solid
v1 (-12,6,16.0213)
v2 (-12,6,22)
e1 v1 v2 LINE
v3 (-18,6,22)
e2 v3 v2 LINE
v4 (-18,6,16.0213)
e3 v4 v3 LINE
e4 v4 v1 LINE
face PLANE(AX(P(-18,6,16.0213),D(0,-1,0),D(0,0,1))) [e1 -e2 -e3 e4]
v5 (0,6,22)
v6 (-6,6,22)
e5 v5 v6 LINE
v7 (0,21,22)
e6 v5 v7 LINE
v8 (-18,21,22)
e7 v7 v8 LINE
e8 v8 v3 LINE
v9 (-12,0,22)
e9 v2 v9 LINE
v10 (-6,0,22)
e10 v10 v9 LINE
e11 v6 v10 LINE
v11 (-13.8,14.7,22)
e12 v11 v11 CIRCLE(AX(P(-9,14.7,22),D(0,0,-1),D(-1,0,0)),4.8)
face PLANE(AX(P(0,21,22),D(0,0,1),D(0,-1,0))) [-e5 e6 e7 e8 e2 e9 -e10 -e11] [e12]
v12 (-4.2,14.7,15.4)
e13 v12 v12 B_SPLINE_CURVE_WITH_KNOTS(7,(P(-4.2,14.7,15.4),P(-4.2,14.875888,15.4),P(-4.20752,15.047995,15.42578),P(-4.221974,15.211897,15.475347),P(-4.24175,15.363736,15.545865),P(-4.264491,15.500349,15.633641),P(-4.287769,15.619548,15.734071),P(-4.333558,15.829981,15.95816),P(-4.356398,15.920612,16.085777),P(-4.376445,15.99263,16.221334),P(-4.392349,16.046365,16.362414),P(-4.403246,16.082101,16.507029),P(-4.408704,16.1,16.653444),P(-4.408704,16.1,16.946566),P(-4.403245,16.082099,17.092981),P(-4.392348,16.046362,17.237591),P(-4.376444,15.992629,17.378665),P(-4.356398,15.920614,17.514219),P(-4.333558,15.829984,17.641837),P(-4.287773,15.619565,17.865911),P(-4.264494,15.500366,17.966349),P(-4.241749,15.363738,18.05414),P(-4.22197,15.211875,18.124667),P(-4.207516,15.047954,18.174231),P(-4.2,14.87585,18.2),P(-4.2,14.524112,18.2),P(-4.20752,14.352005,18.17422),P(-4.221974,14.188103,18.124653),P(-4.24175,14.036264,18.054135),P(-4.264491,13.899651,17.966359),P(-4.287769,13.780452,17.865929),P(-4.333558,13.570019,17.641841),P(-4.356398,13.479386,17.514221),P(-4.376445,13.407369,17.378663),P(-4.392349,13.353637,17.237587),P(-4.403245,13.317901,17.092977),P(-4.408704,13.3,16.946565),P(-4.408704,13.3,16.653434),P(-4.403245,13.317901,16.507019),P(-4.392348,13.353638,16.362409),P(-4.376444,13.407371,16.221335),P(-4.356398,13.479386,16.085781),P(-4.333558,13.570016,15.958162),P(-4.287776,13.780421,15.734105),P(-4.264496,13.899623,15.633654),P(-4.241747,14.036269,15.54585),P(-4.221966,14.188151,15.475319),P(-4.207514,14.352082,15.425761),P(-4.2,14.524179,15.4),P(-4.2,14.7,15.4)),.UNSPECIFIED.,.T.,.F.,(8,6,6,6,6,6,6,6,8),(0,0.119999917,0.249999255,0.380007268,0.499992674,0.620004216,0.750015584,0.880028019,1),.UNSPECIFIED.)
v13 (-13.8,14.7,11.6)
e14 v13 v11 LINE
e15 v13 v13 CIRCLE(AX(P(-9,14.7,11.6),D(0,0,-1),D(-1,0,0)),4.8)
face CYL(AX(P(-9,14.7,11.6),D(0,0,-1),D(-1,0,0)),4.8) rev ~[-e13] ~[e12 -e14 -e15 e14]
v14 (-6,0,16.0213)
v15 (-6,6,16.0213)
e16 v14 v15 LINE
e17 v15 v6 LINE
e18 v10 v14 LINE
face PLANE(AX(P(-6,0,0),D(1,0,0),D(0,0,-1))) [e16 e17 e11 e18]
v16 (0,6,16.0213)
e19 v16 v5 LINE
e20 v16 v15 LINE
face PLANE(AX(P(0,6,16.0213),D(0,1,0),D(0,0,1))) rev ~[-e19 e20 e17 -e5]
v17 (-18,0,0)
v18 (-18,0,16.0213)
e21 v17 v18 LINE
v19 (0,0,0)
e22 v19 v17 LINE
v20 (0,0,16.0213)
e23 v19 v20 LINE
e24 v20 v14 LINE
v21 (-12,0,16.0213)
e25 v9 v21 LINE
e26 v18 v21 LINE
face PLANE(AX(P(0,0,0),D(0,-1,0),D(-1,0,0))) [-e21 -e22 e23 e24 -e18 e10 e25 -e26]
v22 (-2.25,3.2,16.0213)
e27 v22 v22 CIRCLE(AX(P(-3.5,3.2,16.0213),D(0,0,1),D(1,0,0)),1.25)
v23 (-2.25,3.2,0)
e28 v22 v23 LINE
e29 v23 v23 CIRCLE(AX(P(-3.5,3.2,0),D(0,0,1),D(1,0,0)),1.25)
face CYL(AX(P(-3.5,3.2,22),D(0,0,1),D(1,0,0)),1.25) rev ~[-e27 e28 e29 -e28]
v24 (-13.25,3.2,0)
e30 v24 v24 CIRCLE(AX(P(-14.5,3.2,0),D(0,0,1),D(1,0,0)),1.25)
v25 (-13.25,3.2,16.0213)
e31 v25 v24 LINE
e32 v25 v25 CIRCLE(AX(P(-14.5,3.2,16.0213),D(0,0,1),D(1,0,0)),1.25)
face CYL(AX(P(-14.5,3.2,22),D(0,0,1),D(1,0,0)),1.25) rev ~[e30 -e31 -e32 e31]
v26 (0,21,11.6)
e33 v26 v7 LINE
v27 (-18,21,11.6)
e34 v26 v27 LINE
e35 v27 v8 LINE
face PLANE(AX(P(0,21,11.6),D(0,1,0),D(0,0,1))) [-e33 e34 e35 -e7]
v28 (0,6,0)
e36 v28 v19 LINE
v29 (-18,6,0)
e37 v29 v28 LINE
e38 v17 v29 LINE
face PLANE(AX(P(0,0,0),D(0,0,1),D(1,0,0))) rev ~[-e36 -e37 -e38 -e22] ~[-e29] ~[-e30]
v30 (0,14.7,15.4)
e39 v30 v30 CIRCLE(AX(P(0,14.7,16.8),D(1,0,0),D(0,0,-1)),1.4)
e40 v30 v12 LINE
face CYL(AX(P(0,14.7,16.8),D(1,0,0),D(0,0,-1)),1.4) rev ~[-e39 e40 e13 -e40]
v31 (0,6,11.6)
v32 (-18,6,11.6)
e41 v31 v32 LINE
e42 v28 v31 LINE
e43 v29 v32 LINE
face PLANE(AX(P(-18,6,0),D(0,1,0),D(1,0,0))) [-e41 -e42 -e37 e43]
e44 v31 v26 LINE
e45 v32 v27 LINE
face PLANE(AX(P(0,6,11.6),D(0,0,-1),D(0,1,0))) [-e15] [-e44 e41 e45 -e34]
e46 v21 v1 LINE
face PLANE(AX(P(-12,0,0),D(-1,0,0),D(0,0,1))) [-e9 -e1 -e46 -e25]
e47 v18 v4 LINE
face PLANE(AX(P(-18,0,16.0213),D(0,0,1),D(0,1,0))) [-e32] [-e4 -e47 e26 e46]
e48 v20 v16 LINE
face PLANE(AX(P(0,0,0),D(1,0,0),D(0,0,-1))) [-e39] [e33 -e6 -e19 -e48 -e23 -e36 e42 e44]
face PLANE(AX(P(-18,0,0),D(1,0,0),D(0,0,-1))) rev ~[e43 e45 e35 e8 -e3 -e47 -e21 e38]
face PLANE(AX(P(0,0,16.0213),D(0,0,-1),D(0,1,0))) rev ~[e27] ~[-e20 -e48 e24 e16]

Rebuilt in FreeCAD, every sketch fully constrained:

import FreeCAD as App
import Part
import Sketcher

V = App.Vector
Q = App.Units.Quantity


def add_polygon(sketch, points):
    """Adds a closed chain of lines whose ends are joined by coincident constraints."""
    first, n = sketch.GeometryCount, len(points)
    for a, b in zip(points, points[1:] + points[:1]):
        sketch.addGeometry(Part.LineSegment(App.Vector(*a, 0), App.Vector(*b, 0)), False)
    for i in range(n):
        sketch.addConstraint(Sketcher.Constraint("Coincident", first + i, 2, first + (i + 1) % n, 1))

doc = App.newDocument("Part")
body = doc.addObject("PartDesign::Body", "Body")

# Sketch on XY plane
sketch1 = body.newObject("Sketcher::SketchObject", "Sketch")
sketch1.AttachmentSupport = (doc.getObject("XY_Plane"), [""])
sketch1.MapMode = "FlatFace"
add_polygon(sketch1, [(-18, 0), (0, 0), (0, 6), (-18, 6)])  # lines 0-3
sketch1.addConstraint([
    Sketcher.Constraint("Horizontal", 0),
    Sketcher.Constraint("Vertical", 1),
    Sketcher.Constraint("Horizontal", 2),
    Sketcher.Constraint("Vertical", 3),
    Sketcher.Constraint("Coincident", 0, 2, -1, 1),
    Sketcher.Constraint("DistanceX", 0, 1, 0, 2, Q("18 mm")),
    Sketcher.Constraint("DistanceY", 1, 1, 1, 2, Q("6 mm")),
])
pad1 = body.newObject("PartDesign::Pad", "Pad")
pad1.Profile = sketch1
pad1.Length = 22

# Sketch on XY plane
sketch2 = body.newObject("Sketcher::SketchObject", "Sketch001")
sketch2.AttachmentSupport = (doc.getObject("XY_Plane"), [""])
sketch2.MapMode = "FlatFace"
sketch2.AttachmentOffset = App.Placement(V(0, 0, 22), App.Rotation())
sketch2.addGeometry([
    Part.Circle(V(-14.5, 3.2, 0), V(0, 0, 1), 1.25),
    Part.Circle(V(-3.5, 3.2, 0), V(0, 0, 1), 1.25),
], False)
sketch2.addConstraint([
    Sketcher.Constraint("Equal", 0, 1),
    Sketcher.Constraint("Horizontal", 0, 3, 1, 3),
    Sketcher.Constraint("Diameter", 0, Q("2.5 mm")),
    Sketcher.Constraint("DistanceX", 1, 3, -1, 1, Q("3.5 mm")),
    Sketcher.Constraint("DistanceX", 0, 3, 1, 3, Q("11 mm")),
    Sketcher.Constraint("DistanceY", -1, 1, 0, 3, Q("3.2 mm")),
])
pocket1 = body.newObject("PartDesign::Pocket", "Pocket")
pocket1.Profile = sketch2
pocket1.Type = "ThroughAll"

# Sketch on YZ plane
sketch3 = body.newObject("Sketcher::SketchObject", "Sketch002")
sketch3.AttachmentSupport = (doc.getObject("YZ_Plane"), [""])
sketch3.MapMode = "FlatFace"
add_polygon(sketch3, [(6, 22), (6, 11.6), (21, 11.6), (21, 22)])  # lines 0-3
sketch3.addConstraint([
    Sketcher.Constraint("Vertical", 0),
    Sketcher.Constraint("Horizontal", 1),
    Sketcher.Constraint("Vertical", 2),
    Sketcher.Constraint("Horizontal", 3),
    Sketcher.Constraint("DistanceX", 1, 1, 1, 2, Q("15 mm")),
    Sketcher.Constraint("DistanceY", 0, 2, 0, 1, Q("10.4 mm")),
    Sketcher.Constraint("DistanceX", -1, 1, 0, 2, Q("6 mm")),
    Sketcher.Constraint("DistanceY", -1, 1, 2, 2, Q("22 mm")),
])
pad2 = body.newObject("PartDesign::Pad", "Pad001")
pad2.Profile = sketch3
pad2.Length = 18
pad2.Reversed = True

# Sketch on XY plane
sketch4 = body.newObject("Sketcher::SketchObject", "Sketch003")
sketch4.AttachmentSupport = (doc.getObject("XY_Plane"), [""])
sketch4.MapMode = "FlatFace"
sketch4.AttachmentOffset = App.Placement(V(0, 0, 11.6), App.Rotation())
sketch4.addGeometry(Part.Circle(V(-9, 14.7, 0), V(0, 0, 1), 4.8), False)
sketch4.addConstraint([
    Sketcher.Constraint("Diameter", 0, Q("9.6 mm")),
    Sketcher.Constraint("DistanceX", 0, 3, -1, 1, Q("9 mm")),
    Sketcher.Constraint("DistanceY", -1, 1, 0, 3, Q("14.7 mm")),
])
pocket2 = body.newObject("PartDesign::Pocket", "Pocket001")
pocket2.Profile = sketch4
pocket2.Type = "ThroughAll"
pocket2.Reversed = True

# Sketch on YZ plane
sketch5 = body.newObject("Sketcher::SketchObject", "Sketch004")
sketch5.AttachmentSupport = (doc.getObject("YZ_Plane"), [""])
sketch5.MapMode = "FlatFace"
sketch5.AttachmentOffset = App.Placement(V(0, 0, -18), App.Rotation())
add_polygon(sketch5, [(0, 16.0213), (0, 22.0213), (6, 22.0213), (6, 16.0213)])  # lines 0-3
sketch5.addConstraint([
    Sketcher.Constraint("Vertical", 0),
    Sketcher.Constraint("Horizontal", 1),
    Sketcher.Constraint("Vertical", 2),
    Sketcher.Constraint("Horizontal", 3),
    Sketcher.Constraint("PointOnObject", 0, 2, -2),
    Sketcher.Constraint("Equal", 3, 0),
    Sketcher.Constraint("DistanceX", 1, 1, 1, 2, Q("6 mm")),
    Sketcher.Constraint("DistanceY", -1, 1, 0, 2, Q("22.0213 mm")),
])
pocket3 = body.newObject("PartDesign::Pocket", "Pocket002")
pocket3.Profile = sketch5
pocket3.Length = 6
pocket3.Reversed = True

# Sketch on YZ plane
sketch6 = body.newObject("Sketcher::SketchObject", "Sketch005")
sketch6.AttachmentSupport = (doc.getObject("YZ_Plane"), [""])
sketch6.MapMode = "FlatFace"
add_polygon(sketch6, [(6, 16.0213), (6, 22), (0, 22), (0, 16.0213)])  # lines 0-3
sketch6.addConstraint([
    Sketcher.Constraint("Vertical", 0),
    Sketcher.Constraint("Horizontal", 1),
    Sketcher.Constraint("Vertical", 2),
    Sketcher.Constraint("Horizontal", 3),
    Sketcher.Constraint("PointOnObject", 1, 2, -2),
    Sketcher.Constraint("DistanceX", 1, 2, 1, 1, Q("6 mm")),
    Sketcher.Constraint("DistanceY", -1, 1, 0, 2, Q("22 mm")),
    Sketcher.Constraint("DistanceY", 0, 1, 0, 2, Q("5.9787 mm")),
])
pocket4 = body.newObject("PartDesign::Pocket", "Pocket003")
pocket4.Profile = sketch6
pocket4.Length = 6

# Sketch on YZ plane
sketch7 = body.newObject("Sketcher::SketchObject", "Sketch006")
sketch7.AttachmentSupport = (doc.getObject("YZ_Plane"), [""])
sketch7.MapMode = "FlatFace"
sketch7.addGeometry(Part.Circle(V(14.7, 16.8, 0), V(0, 0, 1), 1.4), False)
sketch7.addConstraint([
    Sketcher.Constraint("Diameter", 0, Q("2.8 mm")),
    Sketcher.Constraint("DistanceX", -1, 1, 0, 3, Q("14.7 mm")),
    Sketcher.Constraint("DistanceY", -1, 1, 0, 3, Q("16.8 mm")),
])
pocket5 = body.newObject("PartDesign::Pocket", "Pocket004")
pocket5.Profile = sketch7
pocket5.Length = 6

doc.recompute()
